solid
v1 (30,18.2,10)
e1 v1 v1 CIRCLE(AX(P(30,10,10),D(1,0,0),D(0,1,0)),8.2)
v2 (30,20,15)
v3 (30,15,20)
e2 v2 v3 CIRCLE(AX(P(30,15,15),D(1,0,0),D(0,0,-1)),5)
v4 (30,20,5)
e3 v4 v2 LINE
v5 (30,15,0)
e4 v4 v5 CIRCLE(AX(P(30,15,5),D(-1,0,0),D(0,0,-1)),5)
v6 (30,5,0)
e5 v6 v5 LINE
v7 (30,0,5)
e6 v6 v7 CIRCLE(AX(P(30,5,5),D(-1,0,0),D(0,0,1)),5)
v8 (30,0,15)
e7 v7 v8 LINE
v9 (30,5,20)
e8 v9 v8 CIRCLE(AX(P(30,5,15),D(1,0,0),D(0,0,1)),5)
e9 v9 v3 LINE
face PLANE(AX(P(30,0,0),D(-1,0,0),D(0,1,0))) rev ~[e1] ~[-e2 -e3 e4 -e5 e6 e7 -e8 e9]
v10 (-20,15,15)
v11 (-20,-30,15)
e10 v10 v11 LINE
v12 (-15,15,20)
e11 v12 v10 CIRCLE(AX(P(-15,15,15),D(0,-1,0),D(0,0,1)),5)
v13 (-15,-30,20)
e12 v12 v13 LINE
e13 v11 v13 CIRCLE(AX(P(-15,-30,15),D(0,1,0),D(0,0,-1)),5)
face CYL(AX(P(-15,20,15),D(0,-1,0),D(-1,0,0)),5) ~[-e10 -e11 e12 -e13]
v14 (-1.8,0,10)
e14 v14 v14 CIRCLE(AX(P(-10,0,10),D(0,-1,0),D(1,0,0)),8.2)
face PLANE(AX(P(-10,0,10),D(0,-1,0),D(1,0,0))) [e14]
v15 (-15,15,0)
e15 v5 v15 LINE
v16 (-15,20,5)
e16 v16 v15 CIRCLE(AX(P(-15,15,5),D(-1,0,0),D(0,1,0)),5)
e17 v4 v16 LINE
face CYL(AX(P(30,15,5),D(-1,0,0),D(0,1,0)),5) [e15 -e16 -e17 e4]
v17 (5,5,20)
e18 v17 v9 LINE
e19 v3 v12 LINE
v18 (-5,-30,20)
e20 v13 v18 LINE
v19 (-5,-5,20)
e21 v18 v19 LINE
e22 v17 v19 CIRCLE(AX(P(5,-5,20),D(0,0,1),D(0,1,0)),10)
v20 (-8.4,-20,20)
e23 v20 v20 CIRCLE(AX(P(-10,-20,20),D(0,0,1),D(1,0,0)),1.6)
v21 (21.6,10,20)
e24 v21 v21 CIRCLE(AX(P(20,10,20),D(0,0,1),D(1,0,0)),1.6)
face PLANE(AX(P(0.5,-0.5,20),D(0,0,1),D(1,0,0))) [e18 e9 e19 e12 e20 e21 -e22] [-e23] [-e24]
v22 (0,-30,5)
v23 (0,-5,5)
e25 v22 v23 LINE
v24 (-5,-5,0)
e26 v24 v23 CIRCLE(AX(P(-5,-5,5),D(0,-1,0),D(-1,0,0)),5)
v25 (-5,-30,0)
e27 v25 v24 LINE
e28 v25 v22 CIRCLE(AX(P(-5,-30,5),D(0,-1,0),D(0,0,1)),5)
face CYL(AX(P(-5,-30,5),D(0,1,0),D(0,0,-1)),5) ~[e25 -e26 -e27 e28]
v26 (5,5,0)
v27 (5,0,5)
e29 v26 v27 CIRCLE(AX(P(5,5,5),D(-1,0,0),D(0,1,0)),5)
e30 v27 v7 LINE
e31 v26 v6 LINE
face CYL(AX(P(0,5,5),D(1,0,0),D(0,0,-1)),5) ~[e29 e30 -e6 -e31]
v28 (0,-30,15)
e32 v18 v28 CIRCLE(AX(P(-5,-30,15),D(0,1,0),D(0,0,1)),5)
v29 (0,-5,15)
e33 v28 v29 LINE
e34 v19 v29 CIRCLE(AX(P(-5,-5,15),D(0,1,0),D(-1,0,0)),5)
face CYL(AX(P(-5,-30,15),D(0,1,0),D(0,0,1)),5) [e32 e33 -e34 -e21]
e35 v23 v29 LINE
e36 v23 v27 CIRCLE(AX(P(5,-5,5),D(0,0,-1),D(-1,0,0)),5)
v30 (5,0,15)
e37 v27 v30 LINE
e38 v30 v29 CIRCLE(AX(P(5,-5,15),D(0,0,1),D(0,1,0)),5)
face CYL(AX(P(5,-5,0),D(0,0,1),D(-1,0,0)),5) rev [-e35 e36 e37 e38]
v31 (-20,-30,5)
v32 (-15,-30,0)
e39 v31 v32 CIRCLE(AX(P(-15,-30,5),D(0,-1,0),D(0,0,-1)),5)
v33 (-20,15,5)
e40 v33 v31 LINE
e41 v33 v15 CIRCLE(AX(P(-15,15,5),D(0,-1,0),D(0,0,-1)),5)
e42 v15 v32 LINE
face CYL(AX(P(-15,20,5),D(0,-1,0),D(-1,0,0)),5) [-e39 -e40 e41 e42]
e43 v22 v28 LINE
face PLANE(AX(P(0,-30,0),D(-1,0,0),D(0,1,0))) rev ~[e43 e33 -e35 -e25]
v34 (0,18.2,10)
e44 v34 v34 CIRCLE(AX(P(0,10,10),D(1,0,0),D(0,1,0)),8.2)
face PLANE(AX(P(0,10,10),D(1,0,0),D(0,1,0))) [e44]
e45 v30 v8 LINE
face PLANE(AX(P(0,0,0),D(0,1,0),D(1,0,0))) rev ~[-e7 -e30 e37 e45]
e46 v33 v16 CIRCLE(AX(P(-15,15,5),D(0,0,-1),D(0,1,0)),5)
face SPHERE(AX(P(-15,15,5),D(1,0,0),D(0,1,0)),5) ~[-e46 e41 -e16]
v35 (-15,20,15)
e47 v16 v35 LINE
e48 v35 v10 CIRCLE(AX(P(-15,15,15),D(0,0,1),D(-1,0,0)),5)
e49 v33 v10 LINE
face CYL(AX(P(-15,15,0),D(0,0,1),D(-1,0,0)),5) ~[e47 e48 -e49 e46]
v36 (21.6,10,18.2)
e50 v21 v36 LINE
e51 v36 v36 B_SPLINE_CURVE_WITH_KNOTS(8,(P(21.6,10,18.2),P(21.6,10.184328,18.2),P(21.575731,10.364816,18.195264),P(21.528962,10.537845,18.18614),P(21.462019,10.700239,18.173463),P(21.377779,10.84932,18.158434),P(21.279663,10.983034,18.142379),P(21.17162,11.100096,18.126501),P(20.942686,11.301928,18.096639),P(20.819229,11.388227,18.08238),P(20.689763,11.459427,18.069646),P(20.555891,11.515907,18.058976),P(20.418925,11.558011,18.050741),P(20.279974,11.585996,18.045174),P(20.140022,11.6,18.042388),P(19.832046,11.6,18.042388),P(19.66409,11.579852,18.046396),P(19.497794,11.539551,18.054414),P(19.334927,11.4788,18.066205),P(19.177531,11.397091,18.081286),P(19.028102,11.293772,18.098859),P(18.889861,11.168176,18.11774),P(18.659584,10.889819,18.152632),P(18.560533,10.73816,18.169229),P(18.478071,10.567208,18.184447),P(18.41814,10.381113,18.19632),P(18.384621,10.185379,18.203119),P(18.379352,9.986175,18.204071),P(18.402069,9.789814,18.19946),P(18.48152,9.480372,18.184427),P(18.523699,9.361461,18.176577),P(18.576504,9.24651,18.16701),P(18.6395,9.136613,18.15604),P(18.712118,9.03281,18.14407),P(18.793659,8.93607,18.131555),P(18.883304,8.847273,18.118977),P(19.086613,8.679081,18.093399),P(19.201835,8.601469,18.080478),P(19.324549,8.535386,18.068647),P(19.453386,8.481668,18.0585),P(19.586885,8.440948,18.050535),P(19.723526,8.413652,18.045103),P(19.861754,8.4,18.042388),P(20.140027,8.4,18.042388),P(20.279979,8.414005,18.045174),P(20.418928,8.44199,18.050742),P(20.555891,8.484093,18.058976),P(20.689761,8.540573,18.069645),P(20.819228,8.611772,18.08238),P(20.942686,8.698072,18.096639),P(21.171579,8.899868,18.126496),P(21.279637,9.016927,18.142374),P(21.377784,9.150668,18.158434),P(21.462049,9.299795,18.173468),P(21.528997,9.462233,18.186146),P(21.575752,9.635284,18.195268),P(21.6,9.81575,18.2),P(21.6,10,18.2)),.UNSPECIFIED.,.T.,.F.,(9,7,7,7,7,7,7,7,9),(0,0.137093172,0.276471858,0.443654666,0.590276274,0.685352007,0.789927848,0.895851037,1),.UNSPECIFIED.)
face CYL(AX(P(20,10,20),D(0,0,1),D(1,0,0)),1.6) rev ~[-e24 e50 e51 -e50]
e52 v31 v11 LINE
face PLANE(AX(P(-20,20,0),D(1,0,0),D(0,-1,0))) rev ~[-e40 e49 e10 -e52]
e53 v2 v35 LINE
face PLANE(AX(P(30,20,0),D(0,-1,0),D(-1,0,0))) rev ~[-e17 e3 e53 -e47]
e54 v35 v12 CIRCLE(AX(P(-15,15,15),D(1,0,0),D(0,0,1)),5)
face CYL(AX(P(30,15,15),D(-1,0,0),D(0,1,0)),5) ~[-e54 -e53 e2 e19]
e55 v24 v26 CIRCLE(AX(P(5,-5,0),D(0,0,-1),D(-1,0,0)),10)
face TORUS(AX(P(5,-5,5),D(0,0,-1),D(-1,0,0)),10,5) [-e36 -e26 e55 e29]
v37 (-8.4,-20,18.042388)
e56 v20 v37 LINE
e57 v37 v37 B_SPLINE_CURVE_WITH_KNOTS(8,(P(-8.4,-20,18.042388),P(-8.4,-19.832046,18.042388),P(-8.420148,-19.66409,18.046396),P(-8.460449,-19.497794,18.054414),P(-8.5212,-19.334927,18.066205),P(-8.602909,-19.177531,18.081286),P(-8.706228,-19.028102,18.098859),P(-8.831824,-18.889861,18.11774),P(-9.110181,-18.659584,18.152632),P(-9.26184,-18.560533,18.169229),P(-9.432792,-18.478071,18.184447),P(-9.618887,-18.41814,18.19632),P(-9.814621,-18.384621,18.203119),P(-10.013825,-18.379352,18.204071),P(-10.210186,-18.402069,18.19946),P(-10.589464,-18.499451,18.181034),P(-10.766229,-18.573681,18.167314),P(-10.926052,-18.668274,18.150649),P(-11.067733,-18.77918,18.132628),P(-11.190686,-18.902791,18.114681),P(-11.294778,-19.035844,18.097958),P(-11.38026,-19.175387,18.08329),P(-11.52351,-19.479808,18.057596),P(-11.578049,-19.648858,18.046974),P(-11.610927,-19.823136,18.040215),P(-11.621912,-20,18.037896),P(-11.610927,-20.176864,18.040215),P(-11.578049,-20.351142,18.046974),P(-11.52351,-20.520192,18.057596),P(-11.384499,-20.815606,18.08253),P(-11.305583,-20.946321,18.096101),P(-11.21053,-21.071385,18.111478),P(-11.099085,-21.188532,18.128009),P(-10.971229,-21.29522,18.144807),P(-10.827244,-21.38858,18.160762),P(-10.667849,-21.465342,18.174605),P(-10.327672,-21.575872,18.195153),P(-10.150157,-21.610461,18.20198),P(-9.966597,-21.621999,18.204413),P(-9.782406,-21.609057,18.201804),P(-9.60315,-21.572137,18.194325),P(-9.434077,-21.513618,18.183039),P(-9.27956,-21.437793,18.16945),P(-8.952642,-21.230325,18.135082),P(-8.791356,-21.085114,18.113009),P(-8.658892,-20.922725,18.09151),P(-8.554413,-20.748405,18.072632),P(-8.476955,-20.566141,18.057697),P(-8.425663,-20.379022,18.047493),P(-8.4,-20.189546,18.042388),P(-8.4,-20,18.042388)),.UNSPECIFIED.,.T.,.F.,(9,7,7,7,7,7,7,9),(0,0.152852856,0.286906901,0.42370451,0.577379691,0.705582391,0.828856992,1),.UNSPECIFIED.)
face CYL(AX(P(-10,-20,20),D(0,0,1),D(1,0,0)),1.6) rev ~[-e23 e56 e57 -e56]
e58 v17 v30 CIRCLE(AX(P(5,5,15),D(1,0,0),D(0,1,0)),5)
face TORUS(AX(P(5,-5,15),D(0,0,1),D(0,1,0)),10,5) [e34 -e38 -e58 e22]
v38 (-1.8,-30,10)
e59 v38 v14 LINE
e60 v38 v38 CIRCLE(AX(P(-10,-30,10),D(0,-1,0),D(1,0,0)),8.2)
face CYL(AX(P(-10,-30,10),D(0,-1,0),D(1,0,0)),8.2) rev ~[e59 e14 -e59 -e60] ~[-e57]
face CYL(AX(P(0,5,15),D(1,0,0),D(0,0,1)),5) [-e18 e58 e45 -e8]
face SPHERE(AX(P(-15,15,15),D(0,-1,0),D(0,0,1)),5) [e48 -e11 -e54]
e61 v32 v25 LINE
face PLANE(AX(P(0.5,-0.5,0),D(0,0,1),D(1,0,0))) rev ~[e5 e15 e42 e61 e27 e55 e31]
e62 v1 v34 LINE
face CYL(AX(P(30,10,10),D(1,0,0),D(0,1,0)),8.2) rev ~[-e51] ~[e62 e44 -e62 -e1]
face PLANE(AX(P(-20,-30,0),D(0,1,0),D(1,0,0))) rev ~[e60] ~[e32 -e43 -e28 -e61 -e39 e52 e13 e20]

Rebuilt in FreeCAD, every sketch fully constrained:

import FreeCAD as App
import Part
import Sketcher
Q = App.Units.Quantity


def edges_at(feature, points):
    """Names of the edges that pass closest to the given points."""
    edges = feature.Shape.Edges
    near = lambda p: min(range(len(edges)), key=lambda i: edges[i].distToShape(Part.Vertex(*p))[0])
    return sorted({f"Edge{near(p) + 1}" for p in points})


def add_polygon(sketch, points):
    """Adds a closed chain of lines whose ends are joined by coincident constraints."""
    first, n = sketch.GeometryCount, len(points)
    for a, b in zip(points, points[1:] + points[:1]):
        sketch.addGeometry(Part.LineSegment(App.Vector(*a, 0), App.Vector(*b, 0)), False)
    for i in range(n):
        sketch.addConstraint(Sketcher.Constraint("Coincident", first + i, 2, first + (i + 1) % n, 1))

doc = App.newDocument("Part")
params = doc.addObject("Spreadsheet::Sheet", "Params")
for row, (alias, value) in enumerate([
    ("sketch1_width", "20 mm"),
    ("sketch1_width2", "30 mm"),
    ("pad1_length", "20 mm"),
    ("sketch2_diameter", "16.4 mm"),
    ("pocket1_length", "30 mm"),
    ("sketch3_diameter", "16.4 mm"),
    ("pocket2_length", "30 mm"),
    ("sketch4_diameter", "3.2 mm"),
    ("pocket3_length", "5 mm"),
    ("fillet_radius", "5 mm"),
], start=1):
    params.set(f"A{row}", alias)
    params.set(f"B{row}", "=" + value)
    params.setAlias(f"B{row}", alias)

body = doc.addObject("PartDesign::Body", "Body")

sketch1 = body.newObject("Sketcher::SketchObject", "Sketch")
sketch1.AttachmentSupport = (doc.getObject("XY_Plane"), [""])
sketch1.MapMode = "FlatFace"
add_polygon(sketch1, [(-20, 20), (-20, -30), (0, -30), (0, 0), (30, 0), (30, 20)])
sketch1.addConstraint([
    Sketcher.Constraint("Vertical", 0),
    Sketcher.Constraint("Horizontal", 1),
    Sketcher.Constraint("Vertical", 2),
    Sketcher.Constraint("Horizontal", 3),
    Sketcher.Constraint("Vertical", 4),
    Sketcher.Constraint("Horizontal", 5),
    Sketcher.Constraint("Coincident", 2, 2, -1, 1),
    Sketcher.Constraint("Equal", 5, 0),
    Sketcher.Constraint("Equal", 3, 2),
    Sketcher.Constraint("DistanceX", 1, 1, 1, 2, Q("20 mm")),
    Sketcher.Constraint("DistanceX", 3, 1, 3, 2, Q("30 mm")),
])
sketch1.setExpression("Constraints[15]", "Params.sketch1_width")
sketch1.setExpression("Constraints[16]", "Params.sketch1_width2")
pad1 = body.newObject("PartDesign::Pad", "Pad")
pad1.Profile = sketch1
pad1.setExpression("Length", "Params.pad1_length")

sketch2 = body.newObject("Sketcher::SketchObject", "Sketch001")
sketch2.AttachmentSupport = (doc.getObject("XZ_Plane"), [""])
sketch2.MapMode = "FlatFace"
sketch2.AttachmentOffset = App.Placement(App.Vector(0, 0, 30), App.Rotation())
sketch2.addGeometry(Part.Circle(App.Vector(-10, 10, 0), App.Vector(0, 0, 1), 8), False)
sketch2.addConstraint([
    Sketcher.Constraint("Diameter", 0, Q("16.4 mm")),
    Sketcher.Constraint("DistanceX", 0, 3, -1, 1, Q("10 mm")),
    Sketcher.Constraint("DistanceY", -1, 1, 0, 3, Q("10 mm")),
])
sketch2.setExpression("Constraints[0]", "Params.sketch2_diameter")
pocket1 = body.newObject("PartDesign::Pocket", "Pocket")
pocket1.Profile = sketch2
pocket1.setExpression("Length", "Params.pocket1_length")

sketch3 = body.newObject("Sketcher::SketchObject", "Sketch002")
sketch3.AttachmentSupport = (doc.getObject("YZ_Plane"), [""])
sketch3.MapMode = "FlatFace"
sketch3.AttachmentOffset = App.Placement(App.Vector(0, 0, 30), App.Rotation())
sketch3.addGeometry(Part.Circle(App.Vector(10, 10, 0), App.Vector(0, 0, 1), 8), False)
sketch3.addConstraint([
    Sketcher.Constraint("Diameter", 0, Q("16.4 mm")),
    Sketcher.Constraint("DistanceX", -1, 1, 0, 3, Q("10 mm")),
    Sketcher.Constraint("DistanceY", -1, 1, 0, 3, Q("10 mm")),
])
sketch3.setExpression("Constraints[0]", "Params.sketch3_diameter")
pocket2 = body.newObject("PartDesign::Pocket", "Pocket001")
pocket2.Profile = sketch3
pocket2.setExpression("Length", "Params.pocket2_length")

sketch4 = body.newObject("Sketcher::SketchObject", "Sketch003")
sketch4.AttachmentSupport = (doc.getObject("XY_Plane"), [""])
sketch4.MapMode = "FlatFace"
sketch4.AttachmentOffset = App.Placement(App.Vector(0, 0, 20), App.Rotation())
sketch4.addGeometry([
    Part.Circle(App.Vector(20, 10, 0), App.Vector(0, 0, 1), 1.6),
    Part.Circle(App.Vector(-10, -20, 0), App.Vector(0, 0, 1), 1.6),
], False)
sketch4.addConstraint([
    Sketcher.Constraint("Equal", 0, 1),
    Sketcher.Constraint("Diameter", 0, Q("3.2 mm")),
    Sketcher.Constraint("DistanceX", -1, 1, 0, 3, Q("20 mm")),
    Sketcher.Constraint("DistanceY", -1, 1, 0, 3, Q("10 mm")),
    Sketcher.Constraint("DistanceX", 1, 3, -1, 1, Q("10 mm")),
    Sketcher.Constraint("DistanceY", 1, 3, -1, 1, Q("20 mm")),
])
sketch4.setExpression("Constraints[1]", "Params.sketch4_diameter")
pocket3 = body.newObject("PartDesign::Pocket", "Pocket002")
pocket3.Profile = sketch4
pocket3.setExpression("Length", "Params.pocket3_length")
doc.recompute()

fillet = body.newObject("PartDesign::Fillet", "Fillet")
fillet.Base = (pocket3, edges_at(pocket3, [
    (15, 0, 20),
    (0, -15, 20),
    (-20, -5, 20),
    (5, 20, 20),
    (5, 20, 0),
    (-20, 20, 10),
    (-20, -5, 0),
    (0, -15, 0),
    (15, 0, 0),
    (0, 0, 10),
]))
fillet.setExpression("Radius", "Params.fillet_radius")

doc.recompute()
